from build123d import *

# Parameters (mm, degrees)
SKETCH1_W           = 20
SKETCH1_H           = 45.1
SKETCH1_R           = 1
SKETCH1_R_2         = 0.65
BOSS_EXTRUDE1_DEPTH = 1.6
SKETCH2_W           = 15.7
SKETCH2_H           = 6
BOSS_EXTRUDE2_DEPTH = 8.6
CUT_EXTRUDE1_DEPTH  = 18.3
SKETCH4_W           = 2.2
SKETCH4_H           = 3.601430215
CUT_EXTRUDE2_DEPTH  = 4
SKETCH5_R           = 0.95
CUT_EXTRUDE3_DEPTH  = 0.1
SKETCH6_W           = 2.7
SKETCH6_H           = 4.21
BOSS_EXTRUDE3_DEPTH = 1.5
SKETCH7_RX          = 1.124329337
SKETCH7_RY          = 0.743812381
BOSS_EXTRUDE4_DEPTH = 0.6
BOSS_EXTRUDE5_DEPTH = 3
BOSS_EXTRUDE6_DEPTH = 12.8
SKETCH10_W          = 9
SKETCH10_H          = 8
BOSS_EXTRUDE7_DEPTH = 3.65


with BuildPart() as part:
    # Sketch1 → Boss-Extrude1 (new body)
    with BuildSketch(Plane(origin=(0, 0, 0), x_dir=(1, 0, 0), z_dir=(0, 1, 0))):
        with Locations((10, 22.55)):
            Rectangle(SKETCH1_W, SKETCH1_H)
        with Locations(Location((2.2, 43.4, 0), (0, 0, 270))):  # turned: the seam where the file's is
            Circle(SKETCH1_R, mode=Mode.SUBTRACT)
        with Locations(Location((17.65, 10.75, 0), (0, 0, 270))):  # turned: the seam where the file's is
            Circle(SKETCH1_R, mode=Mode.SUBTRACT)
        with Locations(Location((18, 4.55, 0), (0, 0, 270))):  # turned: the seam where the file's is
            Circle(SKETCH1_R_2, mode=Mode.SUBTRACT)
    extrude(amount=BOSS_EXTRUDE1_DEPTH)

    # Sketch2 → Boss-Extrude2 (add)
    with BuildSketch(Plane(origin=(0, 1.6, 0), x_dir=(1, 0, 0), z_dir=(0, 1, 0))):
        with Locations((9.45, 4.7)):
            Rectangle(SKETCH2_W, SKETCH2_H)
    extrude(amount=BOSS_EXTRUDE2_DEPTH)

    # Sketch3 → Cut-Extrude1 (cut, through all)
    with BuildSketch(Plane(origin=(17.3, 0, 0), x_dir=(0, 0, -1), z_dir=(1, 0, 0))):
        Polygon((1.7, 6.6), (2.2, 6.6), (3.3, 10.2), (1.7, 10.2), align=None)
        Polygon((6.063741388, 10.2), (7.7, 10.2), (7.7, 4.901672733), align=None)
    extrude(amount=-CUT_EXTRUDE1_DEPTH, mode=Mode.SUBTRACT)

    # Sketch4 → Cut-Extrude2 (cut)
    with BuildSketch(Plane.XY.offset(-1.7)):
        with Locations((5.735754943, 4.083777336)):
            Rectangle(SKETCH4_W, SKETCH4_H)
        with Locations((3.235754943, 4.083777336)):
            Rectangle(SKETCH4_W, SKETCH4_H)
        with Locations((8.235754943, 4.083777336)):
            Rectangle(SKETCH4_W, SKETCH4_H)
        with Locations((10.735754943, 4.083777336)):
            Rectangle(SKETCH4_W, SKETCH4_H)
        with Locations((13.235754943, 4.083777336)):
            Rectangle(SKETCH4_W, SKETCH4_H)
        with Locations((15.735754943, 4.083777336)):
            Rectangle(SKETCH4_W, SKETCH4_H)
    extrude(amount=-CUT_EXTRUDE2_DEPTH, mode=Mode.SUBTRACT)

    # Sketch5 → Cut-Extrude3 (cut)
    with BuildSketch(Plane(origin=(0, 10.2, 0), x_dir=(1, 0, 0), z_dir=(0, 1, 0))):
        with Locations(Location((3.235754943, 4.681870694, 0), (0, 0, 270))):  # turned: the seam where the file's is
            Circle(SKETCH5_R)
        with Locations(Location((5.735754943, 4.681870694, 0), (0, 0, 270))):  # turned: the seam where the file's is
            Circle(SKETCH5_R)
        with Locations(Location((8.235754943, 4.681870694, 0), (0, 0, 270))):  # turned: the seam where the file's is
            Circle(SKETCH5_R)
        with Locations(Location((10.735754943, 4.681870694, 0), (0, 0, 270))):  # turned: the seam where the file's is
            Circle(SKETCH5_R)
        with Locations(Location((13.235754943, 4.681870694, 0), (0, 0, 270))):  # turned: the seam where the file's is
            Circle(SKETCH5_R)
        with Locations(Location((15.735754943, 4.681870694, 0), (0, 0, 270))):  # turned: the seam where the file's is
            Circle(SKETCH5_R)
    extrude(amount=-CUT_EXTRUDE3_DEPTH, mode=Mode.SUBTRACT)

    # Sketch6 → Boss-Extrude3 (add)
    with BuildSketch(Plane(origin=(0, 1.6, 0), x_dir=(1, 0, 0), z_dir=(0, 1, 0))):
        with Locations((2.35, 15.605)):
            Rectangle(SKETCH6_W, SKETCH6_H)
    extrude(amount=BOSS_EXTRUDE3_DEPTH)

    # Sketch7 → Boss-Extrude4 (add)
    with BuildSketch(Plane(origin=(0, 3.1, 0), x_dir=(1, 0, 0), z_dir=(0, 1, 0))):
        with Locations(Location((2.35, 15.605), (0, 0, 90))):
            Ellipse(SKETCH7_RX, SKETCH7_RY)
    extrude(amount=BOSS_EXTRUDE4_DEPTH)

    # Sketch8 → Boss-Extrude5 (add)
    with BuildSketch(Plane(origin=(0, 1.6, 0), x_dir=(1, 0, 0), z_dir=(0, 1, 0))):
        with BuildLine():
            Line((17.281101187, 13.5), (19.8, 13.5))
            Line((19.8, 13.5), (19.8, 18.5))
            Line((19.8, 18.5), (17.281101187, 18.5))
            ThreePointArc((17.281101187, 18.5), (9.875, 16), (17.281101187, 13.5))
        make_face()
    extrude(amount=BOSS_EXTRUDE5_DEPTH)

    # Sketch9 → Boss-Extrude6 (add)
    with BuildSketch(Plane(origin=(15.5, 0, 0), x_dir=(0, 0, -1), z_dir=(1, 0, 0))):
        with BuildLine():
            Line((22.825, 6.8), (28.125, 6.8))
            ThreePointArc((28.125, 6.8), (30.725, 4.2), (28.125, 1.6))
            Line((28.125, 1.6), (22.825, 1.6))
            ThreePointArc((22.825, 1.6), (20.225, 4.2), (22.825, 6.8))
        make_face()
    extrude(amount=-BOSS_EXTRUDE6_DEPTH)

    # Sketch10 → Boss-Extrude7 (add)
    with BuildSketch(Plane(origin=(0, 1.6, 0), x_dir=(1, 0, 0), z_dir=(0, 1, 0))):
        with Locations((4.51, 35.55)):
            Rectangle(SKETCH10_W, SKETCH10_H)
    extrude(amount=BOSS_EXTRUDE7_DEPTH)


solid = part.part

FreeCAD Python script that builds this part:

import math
import FreeCAD as App
import Part
import Sketcher
Q = App.Units.Quantity


def add_polygon(sketch, points):
    """Adds a closed chain of lines whose ends are joined by coincident constraints."""
    first, n = sketch.GeometryCount, len(points)
    for a, b in zip(points, points[1:] + points[:1]):
        sketch.addGeometry(Part.LineSegment(App.Vector(*a, 0), App.Vector(*b, 0)), False)
    for i in range(n):
        sketch.addConstraint(Sketcher.Constraint("Coincident", first + i, 2, first + (i + 1) % n, 1))

doc = App.newDocument("Part")
body = doc.addObject("PartDesign::Body", "Body")

# Sketch on XZ plane
sketch1 = body.newObject("Sketcher::SketchObject", "Sketch")
sketch1.AttachmentSupport = (doc.getObject("XZ_Plane"), [""])
sketch1.MapMode = "FlatFace"
add_polygon(sketch1, [(0, -45.1), (0, 0), (20, 0), (20, -45.1)])  # lines 0-3
sketch1.addGeometry(Part.Circle(App.Vector(18, -4.55, 0), App.Vector(0, 0, 1), 0.65), False)  # 4
sketch1.addGeometry(Part.Circle(App.Vector(17.65, -10.75, 0), App.Vector(0, 0, 1), 1), False)  # 5
sketch1.addGeometry(Part.Circle(App.Vector(2.2, -43.4, 0), App.Vector(0, 0, 1), 1), False)  # 6
sketch1.addConstraint([
    Sketcher.Constraint("Vertical", 0),
    Sketcher.Constraint("Horizontal", 1),
    Sketcher.Constraint("Vertical", 2),
    Sketcher.Constraint("Horizontal", 3),
    Sketcher.Constraint("Coincident", 0, 2, -1, 1),
    Sketcher.Constraint("Equal", 5, 6),
    Sketcher.Constraint("Diameter", 5, Q("2 mm")),
    Sketcher.Constraint("Diameter", 4, Q("1.3 mm")),
    Sketcher.Constraint("DistanceX", 1, 1, 1, 2, Q("20 mm")),
    Sketcher.Constraint("DistanceY", 0, 1, 0, 2, Q("45.1 mm")),
    Sketcher.Constraint("DistanceX", -1, 1, 4, 3, Q("18 mm")),
    Sketcher.Constraint("DistanceX", -1, 1, 6, 3, Q("2.2 mm")),
    Sketcher.Constraint("DistanceY", 6, 3, -1, 1, Q("43.4 mm")),
    Sketcher.Constraint("DistanceY", 5, 3, 4, 3, Q("6.2 mm")),
    Sketcher.Constraint("DistanceY", 4, 3, -1, 1, Q("4.55 mm")),
    Sketcher.Constraint("DistanceX", -1, 1, 5, 3, Q("17.65 mm")),
])
pad1 = body.newObject("PartDesign::Pad", "Pad")
pad1.Profile = sketch1
pad1.Length = 1.6
pad1.Reversed = True

# Sketch on XZ plane
sketch2 = body.newObject("Sketcher::SketchObject", "Sketch001")
sketch2.AttachmentSupport = (doc.getObject("XZ_Plane"), [""])
sketch2.MapMode = "FlatFace"
sketch2.AttachmentOffset = App.Placement(App.Vector(0, 0, -1.6), App.Rotation())
add_polygon(sketch2, [(1.6, -7.7), (1.6, -1.7), (17.3, -1.7), (17.3, -7.7)])  # lines 0-3
sketch2.addConstraint([
    Sketcher.Constraint("Vertical", 0),
    Sketcher.Constraint("Horizontal", 1),
    Sketcher.Constraint("Vertical", 2),
    Sketcher.Constraint("Horizontal", 3),
    Sketcher.Constraint("DistanceY", 0, 1, 0, 2, Q("6 mm")),
    Sketcher.Constraint("DistanceX", 1, 1, 1, 2, Q("15.7 mm")),
    Sketcher.Constraint("DistanceX", -1, 1, 0, 2, Q("1.6 mm")),
    Sketcher.Constraint("DistanceY", 0, 2, -1, 1, Q("1.7 mm")),
])
pad2 = body.newObject("PartDesign::Pad", "Pad001")
pad2.Profile = sketch2
pad2.Length = 8.6
pad2.Reversed = True

# Sketch on YZ plane
sketch3 = body.newObject("Sketcher::SketchObject", "Sketch002")
sketch3.AttachmentSupport = (doc.getObject("YZ_Plane"), [""])
sketch3.MapMode = "FlatFace"
sketch3.AttachmentOffset = App.Placement(App.Vector(0, 0, 17.3), App.Rotation())
add_polygon(sketch3, [(6.6, -1.7), (6.6, -2.2), (10.2, -3.3), (10.2, -1.7)])  # lines 0-3
add_polygon(sketch3, [(10.2, -7.7), (10.2, -6.063741), (4.901673, -7.7)])  # lines 4-6
sketch3.addConstraint([
    Sketcher.Constraint("Vertical", 0),
    Sketcher.Constraint("Vertical", 2),
    Sketcher.Constraint("Horizontal", 3),
    Sketcher.Constraint("Vertical", 4),
    Sketcher.Constraint("Horizontal", 6),
    Sketcher.Constraint("Vertical", 2, 2, 4, 2),
    Sketcher.Constraint("DistanceX", 3, 2, 3, 1, Q("3.6 mm")),
    Sketcher.Constraint("DistanceY", 0, 2, 0, 1, Q("0.5 mm")),
    Sketcher.Constraint("DistanceY", 2, 1, 2, 2, Q("1.6 mm")),
    Sketcher.Constraint("DistanceY", 5, 2, 3, 2, Q("6 mm")),
    Sketcher.Constraint("DistanceX", -1, 1, 0, 2, Q("6.6 mm")),
    Sketcher.Constraint("DistanceY", 0, 2, -1, 1, Q("2.2 mm")),
    Sketcher.Constraint("DistanceY", 4, 1, 4, 2, Q("1.636259 mm")),
    Sketcher.Constraint("DistanceX", 6, 1, 6, 2, Q("5.298327 mm")),
])
pocket1 = body.newObject("PartDesign::Pocket", "Pocket")
pocket1.Profile = sketch3
pocket1.Type = "ThroughAll"

# Sketch on XY plane
sketch4 = body.newObject("Sketcher::SketchObject", "Sketch003")
sketch4.AttachmentSupport = (doc.getObject("XY_Plane"), [""])
sketch4.MapMode = "FlatFace"
sketch4.AttachmentOffset = App.Placement(App.Vector(0, 0, -1.7), App.Rotation())
add_polygon(sketch4, [(4.635755, 5.884492), (4.635755, 2.283062), (6.835755, 2.283062), (6.835755, 5.884492)])  # lines 0-3
add_polygon(sketch4, [(2.135755, 5.884492), (2.135755, 2.283062), (4.335755, 2.283062), (4.335755, 5.884492)])  # lines 4-7
add_polygon(sketch4, [(7.135755, 5.884492), (7.135755, 2.283062), (9.335755, 2.283062), (9.335755, 5.884492)])  # lines 8-11
add_polygon(sketch4, [(9.635755, 5.884492), (9.635755, 2.283062), (11.835755, 2.283062), (11.835755, 5.884492)])  # lines 12-15
add_polygon(sketch4, [(12.135755, 5.884492), (12.135755, 2.283062), (14.335755, 2.283062), (14.335755, 5.884492)])  # lines 16-19
add_polygon(sketch4, [(14.635755, 5.884492), (14.635755, 2.283062), (16.835755, 2.283062), (16.835755, 5.884492)])  # lines 20-23
sketch4.addConstraint([
    Sketcher.Constraint("Vertical", 0),
    Sketcher.Constraint("Horizontal", 1),
    Sketcher.Constraint("Vertical", 2),
    Sketcher.Constraint("Horizontal", 3),
    Sketcher.Constraint("Vertical", 4),
    Sketcher.Constraint("Horizontal", 5),
    Sketcher.Constraint("Vertical", 6),
    Sketcher.Constraint("Horizontal", 7),
    Sketcher.Constraint("Vertical", 8),
    Sketcher.Constraint("Horizontal", 9),
    Sketcher.Constraint("Vertical", 10),
    Sketcher.Constraint("Horizontal", 11),
    Sketcher.Constraint("Vertical", 12),
    Sketcher.Constraint("Horizontal", 13),
    Sketcher.Constraint("Vertical", 14),
    Sketcher.Constraint("Horizontal", 15),
    Sketcher.Constraint("Vertical", 16),
    Sketcher.Constraint("Horizontal", 17),
    Sketcher.Constraint("Vertical", 18),
    Sketcher.Constraint("Horizontal", 19),
    Sketcher.Constraint("Vertical", 20),
    Sketcher.Constraint("Horizontal", 21),
    Sketcher.Constraint("Vertical", 22),
    Sketcher.Constraint("Horizontal", 23),
    Sketcher.Constraint("Horizontal", 1, 2, 4, 2),
    Sketcher.Constraint("Horizontal", 3, 2, 6, 2),
    Sketcher.Constraint("Horizontal", 5, 2, 8, 2),
    Sketcher.Constraint("Horizontal", 7, 2, 10, 2),
    Sketcher.Constraint("Horizontal", 9, 2, 12, 2),
    Sketcher.Constraint("Horizontal", 11, 2, 14, 2),
    Sketcher.Constraint("Horizontal", 13, 2, 16, 2),
    Sketcher.Constraint("Horizontal", 15, 2, 18, 2),
    Sketcher.Constraint("Horizontal", 17, 2, 20, 2),
    Sketcher.Constraint("Horizontal", 19, 2, 22, 2),
    Sketcher.Constraint("Equal", 3, 5),
    Sketcher.Constraint("Equal", 7, 9),
    Sketcher.Constraint("Equal", 11, 13),
    Sketcher.Constraint("Equal", 15, 17),
    Sketcher.Constraint("Equal", 19, 21),
    Sketcher.Constraint("DistanceX", 1, 1, 1, 2, Q("2.2 mm")),
    Sketcher.Constraint("DistanceX", 5, 2, 9, 2, Q("5 mm")),
    Sketcher.Constraint("DistanceX", 1, 2, 13, 2, Q("5 mm")),
    Sketcher.Constraint("DistanceX", 9, 2, 17, 2, Q("5 mm")),
    Sketcher.Constraint("DistanceX", 13, 2, 21, 2, Q("5 mm")),
    Sketcher.Constraint("DistanceX", 4, 2, 0, 2, Q("2.5 mm")),
    Sketcher.Constraint("DistanceY", 0, 2, 0, 1, Q("3.60143 mm")),
    Sketcher.Constraint("DistanceX", -1, 1, 0, 2, Q("4.635755 mm")),
    Sketcher.Constraint("DistanceY", -1, 1, 0, 2, Q("2.283062 mm")),
])
pocket2 = body.newObject("PartDesign::Pocket", "Pocket001")
pocket2.Profile = sketch4
pocket2.Length = 4

# Sketch on XZ plane
sketch5 = body.newObject("Sketcher::SketchObject", "Sketch004")
sketch5.AttachmentSupport = (doc.getObject("XZ_Plane"), [""])
sketch5.MapMode = "FlatFace"
sketch5.AttachmentOffset = App.Placement(App.Vector(0, 0, -10.2), App.Rotation())
sketch5.addGeometry([
    Part.Circle(App.Vector(3.235755, -4.681871, 0), App.Vector(0, 0, 1), 0.95),  # 0
    Part.Circle(App.Vector(5.735755, -4.681871, 0), App.Vector(0, 0, 1), 0.95),  # 1
    Part.Circle(App.Vector(8.235755, -4.681871, 0), App.Vector(0, 0, 1), 0.95),  # 2
    Part.Circle(App.Vector(10.735755, -4.681871, 0), App.Vector(0, 0, 1), 0.95),  # 3
    Part.Circle(App.Vector(13.235755, -4.681871, 0), App.Vector(0, 0, 1), 0.95),  # 4
    Part.Circle(App.Vector(15.735755, -4.681871, 0), App.Vector(0, 0, 1), 0.95),  # 5
], False)
sketch5.addConstraint([
    Sketcher.Constraint("Equal", 0, 1),
    Sketcher.Constraint("Equal", 1, 2),
    Sketcher.Constraint("Equal", 2, 3),
    Sketcher.Constraint("Equal", 3, 4),
    Sketcher.Constraint("Equal", 4, 5),
    Sketcher.Constraint("Horizontal", 0, 3, 1, 3),
    Sketcher.Constraint("Horizontal", 1, 3, 2, 3),
    Sketcher.Constraint("Horizontal", 2, 3, 3, 3),
    Sketcher.Constraint("Horizontal", 3, 3, 4, 3),
    Sketcher.Constraint("Horizontal", 4, 3, 5, 3),
    Sketcher.Constraint("Diameter", 0, Q("1.9 mm")),
    Sketcher.Constraint("DistanceX", 0, 3, 2, 3, Q("5 mm")),
    Sketcher.Constraint("DistanceX", 1, 3, 3, 3, Q("5 mm")),
    Sketcher.Constraint("DistanceX", 2, 3, 4, 3, Q("5 mm")),
    Sketcher.Constraint("DistanceX", 3, 3, 5, 3, Q("5 mm")),
    Sketcher.Constraint("DistanceX", 0, 3, 1, 3, Q("2.5 mm")),
    Sketcher.Constraint("DistanceY", 0, 3, -1, 1, Q("4.681871 mm")),
    Sketcher.Constraint("DistanceX", -1, 1, 0, 3, Q("3.235755 mm")),
])
pocket3 = body.newObject("PartDesign::Pocket", "Pocket002")
pocket3.Profile = sketch5
pocket3.Length = 0.1
pocket3.Reversed = True

# Sketch on XZ plane
sketch6 = body.newObject("Sketcher::SketchObject", "Sketch005")
sketch6.AttachmentSupport = (doc.getObject("XZ_Plane"), [""])
sketch6.MapMode = "FlatFace"
sketch6.AttachmentOffset = App.Placement(App.Vector(0, 0, -1.6), App.Rotation())
add_polygon(sketch6, [(1, -17.71), (1, -13.5), (3.7, -13.5), (3.7, -17.71)])  # lines 0-3
sketch6.addConstraint([
    Sketcher.Constraint("Vertical", 0),
    Sketcher.Constraint("Horizontal", 1),
    Sketcher.Constraint("Vertical", 2),
    Sketcher.Constraint("Horizontal", 3),
    Sketcher.Constraint("DistanceX", 1, 1, 1, 2, Q("2.7 mm")),
    Sketcher.Constraint("DistanceX", -1, 1, 0, 2, Q("1 mm")),
    Sketcher.Constraint("DistanceY", 0, 1, 0, 2, Q("4.21 mm")),
    Sketcher.Constraint("DistanceY", 0, 2, -1, 1, Q("13.5 mm")),
])
pad3 = body.newObject("PartDesign::Pad", "Pad002")
pad3.Profile = sketch6
pad3.Length = 1.5
pad3.Reversed = True

# Sketch on XZ plane
sketch7 = body.newObject("Sketcher::SketchObject", "Sketch006")
sketch7.AttachmentSupport = (doc.getObject("XZ_Plane"), [""])
sketch7.MapMode = "FlatFace"
sketch7.AttachmentOffset = App.Placement(App.Vector(0, 0, -3.1), App.Rotation())
sketch7.addGeometry(Part.Ellipse(App.Vector(2.35, -16.729329, 0), App.Vector(3.093812, -15.605, 0), App.Vector(2.35, -15.605, 0)), False)
sketch7.addConstraint(Sketcher.Constraint("Block", 0))
pad4 = body.newObject("PartDesign::Pad", "Pad003")
pad4.Profile = sketch7
pad4.Length = 0.6
pad4.Reversed = True

# Sketch on XZ plane
sketch8 = body.newObject("Sketcher::SketchObject", "Sketch007")
sketch8.AttachmentSupport = (doc.getObject("XZ_Plane"), [""])
sketch8.MapMode = "FlatFace"
sketch8.AttachmentOffset = App.Placement(App.Vector(0, 0, -1.6), App.Rotation())
sketch8.addGeometry([
    Part.LineSegment(App.Vector(17.281101, -13.5, 0), App.Vector(19.8, -13.5, 0)),
    Part.LineSegment(App.Vector(19.8, -13.5, 0), App.Vector(19.8, -18.5, 0)),
    Part.LineSegment(App.Vector(19.8, -18.5, 0), App.Vector(17.281101, -18.5, 0)),
    Part.ArcOfCircle(Part.Circle(App.Vector(14, -16, 0), App.Vector(0, 0, 1), 4.125), math.radians(37.305201), math.radians(322.694799)),
], False)
sketch8.addConstraint([
    Sketcher.Constraint("Coincident", 0, 2, 1, 1),
    Sketcher.Constraint("Coincident", 1, 2, 2, 1),
    Sketcher.Constraint("Coincident", 2, 2, 3, 2),
    Sketcher.Constraint("Coincident", 3, 1, 0, 1),
    Sketcher.Constraint("Horizontal", 0),
    Sketcher.Constraint("Vertical", 1),
    Sketcher.Constraint("Horizontal", 2),
    Sketcher.Constraint("Vertical", 2, 2, 3, 1),
    Sketcher.Constraint("DistanceY", 1, 2, 1, 1, Q("5 mm")),
    Sketcher.Constraint("DistanceX", -1, 1, 3, 3, Q("14 mm")),
    Sketcher.Constraint("DistanceY", 3, 3, -1, 1, Q("16 mm")),
    Sketcher.Constraint("Radius", 3, Q("4.125 mm")),
    Sketcher.Constraint("DistanceX", -1, 1, 0, 2, Q("19.8 mm")),
])
pad5 = body.newObject("PartDesign::Pad", "Pad004")
pad5.Profile = sketch8
pad5.Length = 3
pad5.Reversed = True

# Sketch on YZ plane
sketch9 = body.newObject("Sketcher::SketchObject", "Sketch008")
sketch9.AttachmentSupport = (doc.getObject("YZ_Plane"), [""])
sketch9.MapMode = "FlatFace"
sketch9.AttachmentOffset = App.Placement(App.Vector(0, 0, 15.5), App.Rotation())
sketch9.addGeometry([
    Part.LineSegment(App.Vector(6.8, -28.125, 0), App.Vector(6.8, -22.825, 0)),
    Part.ArcOfCircle(Part.Circle(App.Vector(4.2, -22.825, 0), App.Vector(0, 0, 1), 2.6), math.radians(0), math.radians(180)),
    Part.LineSegment(App.Vector(1.6, -22.825, 0), App.Vector(1.6, -28.125, 0)),
    Part.ArcOfCircle(Part.Circle(App.Vector(4.2, -28.125, 0), App.Vector(0, 0, 1), 2.6), math.radians(180), math.radians(360)),
], False)
sketch9.addConstraint([
    Sketcher.Constraint("Tangent", 0, 2, 1, 1),
    Sketcher.Constraint("Tangent", 1, 2, 2, 1),
    Sketcher.Constraint("Tangent", 2, 2, 3, 1),
    Sketcher.Constraint("Tangent", 3, 2, 0, 1),
    Sketcher.Constraint("Vertical", 0),
    Sketcher.Constraint("Vertical", 2),
    Sketcher.Constraint("Radius", 1, Q("2.6 mm")),
    Sketcher.Constraint("DistanceY", 0, 1, 0, 2, Q("5.3 mm")),
    Sketcher.Constraint("DistanceX", -1, 1, 1, 3, Q("4.2 mm")),
    Sketcher.Constraint("DistanceY", 1, 3, -1, 1, Q("22.825 mm")),
])
pad6 = body.newObject("PartDesign::Pad", "Pad005")
pad6.Profile = sketch9
pad6.Length = 12.8
pad6.Reversed = True

# Sketch on XZ plane
sketch10 = body.newObject("Sketcher::SketchObject", "Sketch009")
sketch10.AttachmentSupport = (doc.getObject("XZ_Plane"), [""])
sketch10.MapMode = "FlatFace"
sketch10.AttachmentOffset = App.Placement(App.Vector(0, 0, -1.6), App.Rotation())
add_polygon(sketch10, [(0.01, -39.55), (0.01, -31.55), (9.01, -31.55), (9.01, -39.55)])  # lines 0-3
sketch10.addConstraint([
    Sketcher.Constraint("Vertical", 0),
    Sketcher.Constraint("Horizontal", 1),
    Sketcher.Constraint("Vertical", 2),
    Sketcher.Constraint("Horizontal", 3),
    Sketcher.Constraint("DistanceX", 1, 1, 1, 2, Q("9 mm")),
    Sketcher.Constraint("DistanceY", 0, 1, 0, 2, Q("8 mm")),
    Sketcher.Constraint("DistanceX", -1, 1, 0, 2, Q("0.01 mm")),
    Sketcher.Constraint("DistanceY", 0, 2, -1, 1, Q("31.55 mm")),
])
pad7 = body.newObject("PartDesign::Pad", "Pad006")
pad7.Profile = sketch10
pad7.Length = 3.65
pad7.Reversed = True

doc.recompute()
